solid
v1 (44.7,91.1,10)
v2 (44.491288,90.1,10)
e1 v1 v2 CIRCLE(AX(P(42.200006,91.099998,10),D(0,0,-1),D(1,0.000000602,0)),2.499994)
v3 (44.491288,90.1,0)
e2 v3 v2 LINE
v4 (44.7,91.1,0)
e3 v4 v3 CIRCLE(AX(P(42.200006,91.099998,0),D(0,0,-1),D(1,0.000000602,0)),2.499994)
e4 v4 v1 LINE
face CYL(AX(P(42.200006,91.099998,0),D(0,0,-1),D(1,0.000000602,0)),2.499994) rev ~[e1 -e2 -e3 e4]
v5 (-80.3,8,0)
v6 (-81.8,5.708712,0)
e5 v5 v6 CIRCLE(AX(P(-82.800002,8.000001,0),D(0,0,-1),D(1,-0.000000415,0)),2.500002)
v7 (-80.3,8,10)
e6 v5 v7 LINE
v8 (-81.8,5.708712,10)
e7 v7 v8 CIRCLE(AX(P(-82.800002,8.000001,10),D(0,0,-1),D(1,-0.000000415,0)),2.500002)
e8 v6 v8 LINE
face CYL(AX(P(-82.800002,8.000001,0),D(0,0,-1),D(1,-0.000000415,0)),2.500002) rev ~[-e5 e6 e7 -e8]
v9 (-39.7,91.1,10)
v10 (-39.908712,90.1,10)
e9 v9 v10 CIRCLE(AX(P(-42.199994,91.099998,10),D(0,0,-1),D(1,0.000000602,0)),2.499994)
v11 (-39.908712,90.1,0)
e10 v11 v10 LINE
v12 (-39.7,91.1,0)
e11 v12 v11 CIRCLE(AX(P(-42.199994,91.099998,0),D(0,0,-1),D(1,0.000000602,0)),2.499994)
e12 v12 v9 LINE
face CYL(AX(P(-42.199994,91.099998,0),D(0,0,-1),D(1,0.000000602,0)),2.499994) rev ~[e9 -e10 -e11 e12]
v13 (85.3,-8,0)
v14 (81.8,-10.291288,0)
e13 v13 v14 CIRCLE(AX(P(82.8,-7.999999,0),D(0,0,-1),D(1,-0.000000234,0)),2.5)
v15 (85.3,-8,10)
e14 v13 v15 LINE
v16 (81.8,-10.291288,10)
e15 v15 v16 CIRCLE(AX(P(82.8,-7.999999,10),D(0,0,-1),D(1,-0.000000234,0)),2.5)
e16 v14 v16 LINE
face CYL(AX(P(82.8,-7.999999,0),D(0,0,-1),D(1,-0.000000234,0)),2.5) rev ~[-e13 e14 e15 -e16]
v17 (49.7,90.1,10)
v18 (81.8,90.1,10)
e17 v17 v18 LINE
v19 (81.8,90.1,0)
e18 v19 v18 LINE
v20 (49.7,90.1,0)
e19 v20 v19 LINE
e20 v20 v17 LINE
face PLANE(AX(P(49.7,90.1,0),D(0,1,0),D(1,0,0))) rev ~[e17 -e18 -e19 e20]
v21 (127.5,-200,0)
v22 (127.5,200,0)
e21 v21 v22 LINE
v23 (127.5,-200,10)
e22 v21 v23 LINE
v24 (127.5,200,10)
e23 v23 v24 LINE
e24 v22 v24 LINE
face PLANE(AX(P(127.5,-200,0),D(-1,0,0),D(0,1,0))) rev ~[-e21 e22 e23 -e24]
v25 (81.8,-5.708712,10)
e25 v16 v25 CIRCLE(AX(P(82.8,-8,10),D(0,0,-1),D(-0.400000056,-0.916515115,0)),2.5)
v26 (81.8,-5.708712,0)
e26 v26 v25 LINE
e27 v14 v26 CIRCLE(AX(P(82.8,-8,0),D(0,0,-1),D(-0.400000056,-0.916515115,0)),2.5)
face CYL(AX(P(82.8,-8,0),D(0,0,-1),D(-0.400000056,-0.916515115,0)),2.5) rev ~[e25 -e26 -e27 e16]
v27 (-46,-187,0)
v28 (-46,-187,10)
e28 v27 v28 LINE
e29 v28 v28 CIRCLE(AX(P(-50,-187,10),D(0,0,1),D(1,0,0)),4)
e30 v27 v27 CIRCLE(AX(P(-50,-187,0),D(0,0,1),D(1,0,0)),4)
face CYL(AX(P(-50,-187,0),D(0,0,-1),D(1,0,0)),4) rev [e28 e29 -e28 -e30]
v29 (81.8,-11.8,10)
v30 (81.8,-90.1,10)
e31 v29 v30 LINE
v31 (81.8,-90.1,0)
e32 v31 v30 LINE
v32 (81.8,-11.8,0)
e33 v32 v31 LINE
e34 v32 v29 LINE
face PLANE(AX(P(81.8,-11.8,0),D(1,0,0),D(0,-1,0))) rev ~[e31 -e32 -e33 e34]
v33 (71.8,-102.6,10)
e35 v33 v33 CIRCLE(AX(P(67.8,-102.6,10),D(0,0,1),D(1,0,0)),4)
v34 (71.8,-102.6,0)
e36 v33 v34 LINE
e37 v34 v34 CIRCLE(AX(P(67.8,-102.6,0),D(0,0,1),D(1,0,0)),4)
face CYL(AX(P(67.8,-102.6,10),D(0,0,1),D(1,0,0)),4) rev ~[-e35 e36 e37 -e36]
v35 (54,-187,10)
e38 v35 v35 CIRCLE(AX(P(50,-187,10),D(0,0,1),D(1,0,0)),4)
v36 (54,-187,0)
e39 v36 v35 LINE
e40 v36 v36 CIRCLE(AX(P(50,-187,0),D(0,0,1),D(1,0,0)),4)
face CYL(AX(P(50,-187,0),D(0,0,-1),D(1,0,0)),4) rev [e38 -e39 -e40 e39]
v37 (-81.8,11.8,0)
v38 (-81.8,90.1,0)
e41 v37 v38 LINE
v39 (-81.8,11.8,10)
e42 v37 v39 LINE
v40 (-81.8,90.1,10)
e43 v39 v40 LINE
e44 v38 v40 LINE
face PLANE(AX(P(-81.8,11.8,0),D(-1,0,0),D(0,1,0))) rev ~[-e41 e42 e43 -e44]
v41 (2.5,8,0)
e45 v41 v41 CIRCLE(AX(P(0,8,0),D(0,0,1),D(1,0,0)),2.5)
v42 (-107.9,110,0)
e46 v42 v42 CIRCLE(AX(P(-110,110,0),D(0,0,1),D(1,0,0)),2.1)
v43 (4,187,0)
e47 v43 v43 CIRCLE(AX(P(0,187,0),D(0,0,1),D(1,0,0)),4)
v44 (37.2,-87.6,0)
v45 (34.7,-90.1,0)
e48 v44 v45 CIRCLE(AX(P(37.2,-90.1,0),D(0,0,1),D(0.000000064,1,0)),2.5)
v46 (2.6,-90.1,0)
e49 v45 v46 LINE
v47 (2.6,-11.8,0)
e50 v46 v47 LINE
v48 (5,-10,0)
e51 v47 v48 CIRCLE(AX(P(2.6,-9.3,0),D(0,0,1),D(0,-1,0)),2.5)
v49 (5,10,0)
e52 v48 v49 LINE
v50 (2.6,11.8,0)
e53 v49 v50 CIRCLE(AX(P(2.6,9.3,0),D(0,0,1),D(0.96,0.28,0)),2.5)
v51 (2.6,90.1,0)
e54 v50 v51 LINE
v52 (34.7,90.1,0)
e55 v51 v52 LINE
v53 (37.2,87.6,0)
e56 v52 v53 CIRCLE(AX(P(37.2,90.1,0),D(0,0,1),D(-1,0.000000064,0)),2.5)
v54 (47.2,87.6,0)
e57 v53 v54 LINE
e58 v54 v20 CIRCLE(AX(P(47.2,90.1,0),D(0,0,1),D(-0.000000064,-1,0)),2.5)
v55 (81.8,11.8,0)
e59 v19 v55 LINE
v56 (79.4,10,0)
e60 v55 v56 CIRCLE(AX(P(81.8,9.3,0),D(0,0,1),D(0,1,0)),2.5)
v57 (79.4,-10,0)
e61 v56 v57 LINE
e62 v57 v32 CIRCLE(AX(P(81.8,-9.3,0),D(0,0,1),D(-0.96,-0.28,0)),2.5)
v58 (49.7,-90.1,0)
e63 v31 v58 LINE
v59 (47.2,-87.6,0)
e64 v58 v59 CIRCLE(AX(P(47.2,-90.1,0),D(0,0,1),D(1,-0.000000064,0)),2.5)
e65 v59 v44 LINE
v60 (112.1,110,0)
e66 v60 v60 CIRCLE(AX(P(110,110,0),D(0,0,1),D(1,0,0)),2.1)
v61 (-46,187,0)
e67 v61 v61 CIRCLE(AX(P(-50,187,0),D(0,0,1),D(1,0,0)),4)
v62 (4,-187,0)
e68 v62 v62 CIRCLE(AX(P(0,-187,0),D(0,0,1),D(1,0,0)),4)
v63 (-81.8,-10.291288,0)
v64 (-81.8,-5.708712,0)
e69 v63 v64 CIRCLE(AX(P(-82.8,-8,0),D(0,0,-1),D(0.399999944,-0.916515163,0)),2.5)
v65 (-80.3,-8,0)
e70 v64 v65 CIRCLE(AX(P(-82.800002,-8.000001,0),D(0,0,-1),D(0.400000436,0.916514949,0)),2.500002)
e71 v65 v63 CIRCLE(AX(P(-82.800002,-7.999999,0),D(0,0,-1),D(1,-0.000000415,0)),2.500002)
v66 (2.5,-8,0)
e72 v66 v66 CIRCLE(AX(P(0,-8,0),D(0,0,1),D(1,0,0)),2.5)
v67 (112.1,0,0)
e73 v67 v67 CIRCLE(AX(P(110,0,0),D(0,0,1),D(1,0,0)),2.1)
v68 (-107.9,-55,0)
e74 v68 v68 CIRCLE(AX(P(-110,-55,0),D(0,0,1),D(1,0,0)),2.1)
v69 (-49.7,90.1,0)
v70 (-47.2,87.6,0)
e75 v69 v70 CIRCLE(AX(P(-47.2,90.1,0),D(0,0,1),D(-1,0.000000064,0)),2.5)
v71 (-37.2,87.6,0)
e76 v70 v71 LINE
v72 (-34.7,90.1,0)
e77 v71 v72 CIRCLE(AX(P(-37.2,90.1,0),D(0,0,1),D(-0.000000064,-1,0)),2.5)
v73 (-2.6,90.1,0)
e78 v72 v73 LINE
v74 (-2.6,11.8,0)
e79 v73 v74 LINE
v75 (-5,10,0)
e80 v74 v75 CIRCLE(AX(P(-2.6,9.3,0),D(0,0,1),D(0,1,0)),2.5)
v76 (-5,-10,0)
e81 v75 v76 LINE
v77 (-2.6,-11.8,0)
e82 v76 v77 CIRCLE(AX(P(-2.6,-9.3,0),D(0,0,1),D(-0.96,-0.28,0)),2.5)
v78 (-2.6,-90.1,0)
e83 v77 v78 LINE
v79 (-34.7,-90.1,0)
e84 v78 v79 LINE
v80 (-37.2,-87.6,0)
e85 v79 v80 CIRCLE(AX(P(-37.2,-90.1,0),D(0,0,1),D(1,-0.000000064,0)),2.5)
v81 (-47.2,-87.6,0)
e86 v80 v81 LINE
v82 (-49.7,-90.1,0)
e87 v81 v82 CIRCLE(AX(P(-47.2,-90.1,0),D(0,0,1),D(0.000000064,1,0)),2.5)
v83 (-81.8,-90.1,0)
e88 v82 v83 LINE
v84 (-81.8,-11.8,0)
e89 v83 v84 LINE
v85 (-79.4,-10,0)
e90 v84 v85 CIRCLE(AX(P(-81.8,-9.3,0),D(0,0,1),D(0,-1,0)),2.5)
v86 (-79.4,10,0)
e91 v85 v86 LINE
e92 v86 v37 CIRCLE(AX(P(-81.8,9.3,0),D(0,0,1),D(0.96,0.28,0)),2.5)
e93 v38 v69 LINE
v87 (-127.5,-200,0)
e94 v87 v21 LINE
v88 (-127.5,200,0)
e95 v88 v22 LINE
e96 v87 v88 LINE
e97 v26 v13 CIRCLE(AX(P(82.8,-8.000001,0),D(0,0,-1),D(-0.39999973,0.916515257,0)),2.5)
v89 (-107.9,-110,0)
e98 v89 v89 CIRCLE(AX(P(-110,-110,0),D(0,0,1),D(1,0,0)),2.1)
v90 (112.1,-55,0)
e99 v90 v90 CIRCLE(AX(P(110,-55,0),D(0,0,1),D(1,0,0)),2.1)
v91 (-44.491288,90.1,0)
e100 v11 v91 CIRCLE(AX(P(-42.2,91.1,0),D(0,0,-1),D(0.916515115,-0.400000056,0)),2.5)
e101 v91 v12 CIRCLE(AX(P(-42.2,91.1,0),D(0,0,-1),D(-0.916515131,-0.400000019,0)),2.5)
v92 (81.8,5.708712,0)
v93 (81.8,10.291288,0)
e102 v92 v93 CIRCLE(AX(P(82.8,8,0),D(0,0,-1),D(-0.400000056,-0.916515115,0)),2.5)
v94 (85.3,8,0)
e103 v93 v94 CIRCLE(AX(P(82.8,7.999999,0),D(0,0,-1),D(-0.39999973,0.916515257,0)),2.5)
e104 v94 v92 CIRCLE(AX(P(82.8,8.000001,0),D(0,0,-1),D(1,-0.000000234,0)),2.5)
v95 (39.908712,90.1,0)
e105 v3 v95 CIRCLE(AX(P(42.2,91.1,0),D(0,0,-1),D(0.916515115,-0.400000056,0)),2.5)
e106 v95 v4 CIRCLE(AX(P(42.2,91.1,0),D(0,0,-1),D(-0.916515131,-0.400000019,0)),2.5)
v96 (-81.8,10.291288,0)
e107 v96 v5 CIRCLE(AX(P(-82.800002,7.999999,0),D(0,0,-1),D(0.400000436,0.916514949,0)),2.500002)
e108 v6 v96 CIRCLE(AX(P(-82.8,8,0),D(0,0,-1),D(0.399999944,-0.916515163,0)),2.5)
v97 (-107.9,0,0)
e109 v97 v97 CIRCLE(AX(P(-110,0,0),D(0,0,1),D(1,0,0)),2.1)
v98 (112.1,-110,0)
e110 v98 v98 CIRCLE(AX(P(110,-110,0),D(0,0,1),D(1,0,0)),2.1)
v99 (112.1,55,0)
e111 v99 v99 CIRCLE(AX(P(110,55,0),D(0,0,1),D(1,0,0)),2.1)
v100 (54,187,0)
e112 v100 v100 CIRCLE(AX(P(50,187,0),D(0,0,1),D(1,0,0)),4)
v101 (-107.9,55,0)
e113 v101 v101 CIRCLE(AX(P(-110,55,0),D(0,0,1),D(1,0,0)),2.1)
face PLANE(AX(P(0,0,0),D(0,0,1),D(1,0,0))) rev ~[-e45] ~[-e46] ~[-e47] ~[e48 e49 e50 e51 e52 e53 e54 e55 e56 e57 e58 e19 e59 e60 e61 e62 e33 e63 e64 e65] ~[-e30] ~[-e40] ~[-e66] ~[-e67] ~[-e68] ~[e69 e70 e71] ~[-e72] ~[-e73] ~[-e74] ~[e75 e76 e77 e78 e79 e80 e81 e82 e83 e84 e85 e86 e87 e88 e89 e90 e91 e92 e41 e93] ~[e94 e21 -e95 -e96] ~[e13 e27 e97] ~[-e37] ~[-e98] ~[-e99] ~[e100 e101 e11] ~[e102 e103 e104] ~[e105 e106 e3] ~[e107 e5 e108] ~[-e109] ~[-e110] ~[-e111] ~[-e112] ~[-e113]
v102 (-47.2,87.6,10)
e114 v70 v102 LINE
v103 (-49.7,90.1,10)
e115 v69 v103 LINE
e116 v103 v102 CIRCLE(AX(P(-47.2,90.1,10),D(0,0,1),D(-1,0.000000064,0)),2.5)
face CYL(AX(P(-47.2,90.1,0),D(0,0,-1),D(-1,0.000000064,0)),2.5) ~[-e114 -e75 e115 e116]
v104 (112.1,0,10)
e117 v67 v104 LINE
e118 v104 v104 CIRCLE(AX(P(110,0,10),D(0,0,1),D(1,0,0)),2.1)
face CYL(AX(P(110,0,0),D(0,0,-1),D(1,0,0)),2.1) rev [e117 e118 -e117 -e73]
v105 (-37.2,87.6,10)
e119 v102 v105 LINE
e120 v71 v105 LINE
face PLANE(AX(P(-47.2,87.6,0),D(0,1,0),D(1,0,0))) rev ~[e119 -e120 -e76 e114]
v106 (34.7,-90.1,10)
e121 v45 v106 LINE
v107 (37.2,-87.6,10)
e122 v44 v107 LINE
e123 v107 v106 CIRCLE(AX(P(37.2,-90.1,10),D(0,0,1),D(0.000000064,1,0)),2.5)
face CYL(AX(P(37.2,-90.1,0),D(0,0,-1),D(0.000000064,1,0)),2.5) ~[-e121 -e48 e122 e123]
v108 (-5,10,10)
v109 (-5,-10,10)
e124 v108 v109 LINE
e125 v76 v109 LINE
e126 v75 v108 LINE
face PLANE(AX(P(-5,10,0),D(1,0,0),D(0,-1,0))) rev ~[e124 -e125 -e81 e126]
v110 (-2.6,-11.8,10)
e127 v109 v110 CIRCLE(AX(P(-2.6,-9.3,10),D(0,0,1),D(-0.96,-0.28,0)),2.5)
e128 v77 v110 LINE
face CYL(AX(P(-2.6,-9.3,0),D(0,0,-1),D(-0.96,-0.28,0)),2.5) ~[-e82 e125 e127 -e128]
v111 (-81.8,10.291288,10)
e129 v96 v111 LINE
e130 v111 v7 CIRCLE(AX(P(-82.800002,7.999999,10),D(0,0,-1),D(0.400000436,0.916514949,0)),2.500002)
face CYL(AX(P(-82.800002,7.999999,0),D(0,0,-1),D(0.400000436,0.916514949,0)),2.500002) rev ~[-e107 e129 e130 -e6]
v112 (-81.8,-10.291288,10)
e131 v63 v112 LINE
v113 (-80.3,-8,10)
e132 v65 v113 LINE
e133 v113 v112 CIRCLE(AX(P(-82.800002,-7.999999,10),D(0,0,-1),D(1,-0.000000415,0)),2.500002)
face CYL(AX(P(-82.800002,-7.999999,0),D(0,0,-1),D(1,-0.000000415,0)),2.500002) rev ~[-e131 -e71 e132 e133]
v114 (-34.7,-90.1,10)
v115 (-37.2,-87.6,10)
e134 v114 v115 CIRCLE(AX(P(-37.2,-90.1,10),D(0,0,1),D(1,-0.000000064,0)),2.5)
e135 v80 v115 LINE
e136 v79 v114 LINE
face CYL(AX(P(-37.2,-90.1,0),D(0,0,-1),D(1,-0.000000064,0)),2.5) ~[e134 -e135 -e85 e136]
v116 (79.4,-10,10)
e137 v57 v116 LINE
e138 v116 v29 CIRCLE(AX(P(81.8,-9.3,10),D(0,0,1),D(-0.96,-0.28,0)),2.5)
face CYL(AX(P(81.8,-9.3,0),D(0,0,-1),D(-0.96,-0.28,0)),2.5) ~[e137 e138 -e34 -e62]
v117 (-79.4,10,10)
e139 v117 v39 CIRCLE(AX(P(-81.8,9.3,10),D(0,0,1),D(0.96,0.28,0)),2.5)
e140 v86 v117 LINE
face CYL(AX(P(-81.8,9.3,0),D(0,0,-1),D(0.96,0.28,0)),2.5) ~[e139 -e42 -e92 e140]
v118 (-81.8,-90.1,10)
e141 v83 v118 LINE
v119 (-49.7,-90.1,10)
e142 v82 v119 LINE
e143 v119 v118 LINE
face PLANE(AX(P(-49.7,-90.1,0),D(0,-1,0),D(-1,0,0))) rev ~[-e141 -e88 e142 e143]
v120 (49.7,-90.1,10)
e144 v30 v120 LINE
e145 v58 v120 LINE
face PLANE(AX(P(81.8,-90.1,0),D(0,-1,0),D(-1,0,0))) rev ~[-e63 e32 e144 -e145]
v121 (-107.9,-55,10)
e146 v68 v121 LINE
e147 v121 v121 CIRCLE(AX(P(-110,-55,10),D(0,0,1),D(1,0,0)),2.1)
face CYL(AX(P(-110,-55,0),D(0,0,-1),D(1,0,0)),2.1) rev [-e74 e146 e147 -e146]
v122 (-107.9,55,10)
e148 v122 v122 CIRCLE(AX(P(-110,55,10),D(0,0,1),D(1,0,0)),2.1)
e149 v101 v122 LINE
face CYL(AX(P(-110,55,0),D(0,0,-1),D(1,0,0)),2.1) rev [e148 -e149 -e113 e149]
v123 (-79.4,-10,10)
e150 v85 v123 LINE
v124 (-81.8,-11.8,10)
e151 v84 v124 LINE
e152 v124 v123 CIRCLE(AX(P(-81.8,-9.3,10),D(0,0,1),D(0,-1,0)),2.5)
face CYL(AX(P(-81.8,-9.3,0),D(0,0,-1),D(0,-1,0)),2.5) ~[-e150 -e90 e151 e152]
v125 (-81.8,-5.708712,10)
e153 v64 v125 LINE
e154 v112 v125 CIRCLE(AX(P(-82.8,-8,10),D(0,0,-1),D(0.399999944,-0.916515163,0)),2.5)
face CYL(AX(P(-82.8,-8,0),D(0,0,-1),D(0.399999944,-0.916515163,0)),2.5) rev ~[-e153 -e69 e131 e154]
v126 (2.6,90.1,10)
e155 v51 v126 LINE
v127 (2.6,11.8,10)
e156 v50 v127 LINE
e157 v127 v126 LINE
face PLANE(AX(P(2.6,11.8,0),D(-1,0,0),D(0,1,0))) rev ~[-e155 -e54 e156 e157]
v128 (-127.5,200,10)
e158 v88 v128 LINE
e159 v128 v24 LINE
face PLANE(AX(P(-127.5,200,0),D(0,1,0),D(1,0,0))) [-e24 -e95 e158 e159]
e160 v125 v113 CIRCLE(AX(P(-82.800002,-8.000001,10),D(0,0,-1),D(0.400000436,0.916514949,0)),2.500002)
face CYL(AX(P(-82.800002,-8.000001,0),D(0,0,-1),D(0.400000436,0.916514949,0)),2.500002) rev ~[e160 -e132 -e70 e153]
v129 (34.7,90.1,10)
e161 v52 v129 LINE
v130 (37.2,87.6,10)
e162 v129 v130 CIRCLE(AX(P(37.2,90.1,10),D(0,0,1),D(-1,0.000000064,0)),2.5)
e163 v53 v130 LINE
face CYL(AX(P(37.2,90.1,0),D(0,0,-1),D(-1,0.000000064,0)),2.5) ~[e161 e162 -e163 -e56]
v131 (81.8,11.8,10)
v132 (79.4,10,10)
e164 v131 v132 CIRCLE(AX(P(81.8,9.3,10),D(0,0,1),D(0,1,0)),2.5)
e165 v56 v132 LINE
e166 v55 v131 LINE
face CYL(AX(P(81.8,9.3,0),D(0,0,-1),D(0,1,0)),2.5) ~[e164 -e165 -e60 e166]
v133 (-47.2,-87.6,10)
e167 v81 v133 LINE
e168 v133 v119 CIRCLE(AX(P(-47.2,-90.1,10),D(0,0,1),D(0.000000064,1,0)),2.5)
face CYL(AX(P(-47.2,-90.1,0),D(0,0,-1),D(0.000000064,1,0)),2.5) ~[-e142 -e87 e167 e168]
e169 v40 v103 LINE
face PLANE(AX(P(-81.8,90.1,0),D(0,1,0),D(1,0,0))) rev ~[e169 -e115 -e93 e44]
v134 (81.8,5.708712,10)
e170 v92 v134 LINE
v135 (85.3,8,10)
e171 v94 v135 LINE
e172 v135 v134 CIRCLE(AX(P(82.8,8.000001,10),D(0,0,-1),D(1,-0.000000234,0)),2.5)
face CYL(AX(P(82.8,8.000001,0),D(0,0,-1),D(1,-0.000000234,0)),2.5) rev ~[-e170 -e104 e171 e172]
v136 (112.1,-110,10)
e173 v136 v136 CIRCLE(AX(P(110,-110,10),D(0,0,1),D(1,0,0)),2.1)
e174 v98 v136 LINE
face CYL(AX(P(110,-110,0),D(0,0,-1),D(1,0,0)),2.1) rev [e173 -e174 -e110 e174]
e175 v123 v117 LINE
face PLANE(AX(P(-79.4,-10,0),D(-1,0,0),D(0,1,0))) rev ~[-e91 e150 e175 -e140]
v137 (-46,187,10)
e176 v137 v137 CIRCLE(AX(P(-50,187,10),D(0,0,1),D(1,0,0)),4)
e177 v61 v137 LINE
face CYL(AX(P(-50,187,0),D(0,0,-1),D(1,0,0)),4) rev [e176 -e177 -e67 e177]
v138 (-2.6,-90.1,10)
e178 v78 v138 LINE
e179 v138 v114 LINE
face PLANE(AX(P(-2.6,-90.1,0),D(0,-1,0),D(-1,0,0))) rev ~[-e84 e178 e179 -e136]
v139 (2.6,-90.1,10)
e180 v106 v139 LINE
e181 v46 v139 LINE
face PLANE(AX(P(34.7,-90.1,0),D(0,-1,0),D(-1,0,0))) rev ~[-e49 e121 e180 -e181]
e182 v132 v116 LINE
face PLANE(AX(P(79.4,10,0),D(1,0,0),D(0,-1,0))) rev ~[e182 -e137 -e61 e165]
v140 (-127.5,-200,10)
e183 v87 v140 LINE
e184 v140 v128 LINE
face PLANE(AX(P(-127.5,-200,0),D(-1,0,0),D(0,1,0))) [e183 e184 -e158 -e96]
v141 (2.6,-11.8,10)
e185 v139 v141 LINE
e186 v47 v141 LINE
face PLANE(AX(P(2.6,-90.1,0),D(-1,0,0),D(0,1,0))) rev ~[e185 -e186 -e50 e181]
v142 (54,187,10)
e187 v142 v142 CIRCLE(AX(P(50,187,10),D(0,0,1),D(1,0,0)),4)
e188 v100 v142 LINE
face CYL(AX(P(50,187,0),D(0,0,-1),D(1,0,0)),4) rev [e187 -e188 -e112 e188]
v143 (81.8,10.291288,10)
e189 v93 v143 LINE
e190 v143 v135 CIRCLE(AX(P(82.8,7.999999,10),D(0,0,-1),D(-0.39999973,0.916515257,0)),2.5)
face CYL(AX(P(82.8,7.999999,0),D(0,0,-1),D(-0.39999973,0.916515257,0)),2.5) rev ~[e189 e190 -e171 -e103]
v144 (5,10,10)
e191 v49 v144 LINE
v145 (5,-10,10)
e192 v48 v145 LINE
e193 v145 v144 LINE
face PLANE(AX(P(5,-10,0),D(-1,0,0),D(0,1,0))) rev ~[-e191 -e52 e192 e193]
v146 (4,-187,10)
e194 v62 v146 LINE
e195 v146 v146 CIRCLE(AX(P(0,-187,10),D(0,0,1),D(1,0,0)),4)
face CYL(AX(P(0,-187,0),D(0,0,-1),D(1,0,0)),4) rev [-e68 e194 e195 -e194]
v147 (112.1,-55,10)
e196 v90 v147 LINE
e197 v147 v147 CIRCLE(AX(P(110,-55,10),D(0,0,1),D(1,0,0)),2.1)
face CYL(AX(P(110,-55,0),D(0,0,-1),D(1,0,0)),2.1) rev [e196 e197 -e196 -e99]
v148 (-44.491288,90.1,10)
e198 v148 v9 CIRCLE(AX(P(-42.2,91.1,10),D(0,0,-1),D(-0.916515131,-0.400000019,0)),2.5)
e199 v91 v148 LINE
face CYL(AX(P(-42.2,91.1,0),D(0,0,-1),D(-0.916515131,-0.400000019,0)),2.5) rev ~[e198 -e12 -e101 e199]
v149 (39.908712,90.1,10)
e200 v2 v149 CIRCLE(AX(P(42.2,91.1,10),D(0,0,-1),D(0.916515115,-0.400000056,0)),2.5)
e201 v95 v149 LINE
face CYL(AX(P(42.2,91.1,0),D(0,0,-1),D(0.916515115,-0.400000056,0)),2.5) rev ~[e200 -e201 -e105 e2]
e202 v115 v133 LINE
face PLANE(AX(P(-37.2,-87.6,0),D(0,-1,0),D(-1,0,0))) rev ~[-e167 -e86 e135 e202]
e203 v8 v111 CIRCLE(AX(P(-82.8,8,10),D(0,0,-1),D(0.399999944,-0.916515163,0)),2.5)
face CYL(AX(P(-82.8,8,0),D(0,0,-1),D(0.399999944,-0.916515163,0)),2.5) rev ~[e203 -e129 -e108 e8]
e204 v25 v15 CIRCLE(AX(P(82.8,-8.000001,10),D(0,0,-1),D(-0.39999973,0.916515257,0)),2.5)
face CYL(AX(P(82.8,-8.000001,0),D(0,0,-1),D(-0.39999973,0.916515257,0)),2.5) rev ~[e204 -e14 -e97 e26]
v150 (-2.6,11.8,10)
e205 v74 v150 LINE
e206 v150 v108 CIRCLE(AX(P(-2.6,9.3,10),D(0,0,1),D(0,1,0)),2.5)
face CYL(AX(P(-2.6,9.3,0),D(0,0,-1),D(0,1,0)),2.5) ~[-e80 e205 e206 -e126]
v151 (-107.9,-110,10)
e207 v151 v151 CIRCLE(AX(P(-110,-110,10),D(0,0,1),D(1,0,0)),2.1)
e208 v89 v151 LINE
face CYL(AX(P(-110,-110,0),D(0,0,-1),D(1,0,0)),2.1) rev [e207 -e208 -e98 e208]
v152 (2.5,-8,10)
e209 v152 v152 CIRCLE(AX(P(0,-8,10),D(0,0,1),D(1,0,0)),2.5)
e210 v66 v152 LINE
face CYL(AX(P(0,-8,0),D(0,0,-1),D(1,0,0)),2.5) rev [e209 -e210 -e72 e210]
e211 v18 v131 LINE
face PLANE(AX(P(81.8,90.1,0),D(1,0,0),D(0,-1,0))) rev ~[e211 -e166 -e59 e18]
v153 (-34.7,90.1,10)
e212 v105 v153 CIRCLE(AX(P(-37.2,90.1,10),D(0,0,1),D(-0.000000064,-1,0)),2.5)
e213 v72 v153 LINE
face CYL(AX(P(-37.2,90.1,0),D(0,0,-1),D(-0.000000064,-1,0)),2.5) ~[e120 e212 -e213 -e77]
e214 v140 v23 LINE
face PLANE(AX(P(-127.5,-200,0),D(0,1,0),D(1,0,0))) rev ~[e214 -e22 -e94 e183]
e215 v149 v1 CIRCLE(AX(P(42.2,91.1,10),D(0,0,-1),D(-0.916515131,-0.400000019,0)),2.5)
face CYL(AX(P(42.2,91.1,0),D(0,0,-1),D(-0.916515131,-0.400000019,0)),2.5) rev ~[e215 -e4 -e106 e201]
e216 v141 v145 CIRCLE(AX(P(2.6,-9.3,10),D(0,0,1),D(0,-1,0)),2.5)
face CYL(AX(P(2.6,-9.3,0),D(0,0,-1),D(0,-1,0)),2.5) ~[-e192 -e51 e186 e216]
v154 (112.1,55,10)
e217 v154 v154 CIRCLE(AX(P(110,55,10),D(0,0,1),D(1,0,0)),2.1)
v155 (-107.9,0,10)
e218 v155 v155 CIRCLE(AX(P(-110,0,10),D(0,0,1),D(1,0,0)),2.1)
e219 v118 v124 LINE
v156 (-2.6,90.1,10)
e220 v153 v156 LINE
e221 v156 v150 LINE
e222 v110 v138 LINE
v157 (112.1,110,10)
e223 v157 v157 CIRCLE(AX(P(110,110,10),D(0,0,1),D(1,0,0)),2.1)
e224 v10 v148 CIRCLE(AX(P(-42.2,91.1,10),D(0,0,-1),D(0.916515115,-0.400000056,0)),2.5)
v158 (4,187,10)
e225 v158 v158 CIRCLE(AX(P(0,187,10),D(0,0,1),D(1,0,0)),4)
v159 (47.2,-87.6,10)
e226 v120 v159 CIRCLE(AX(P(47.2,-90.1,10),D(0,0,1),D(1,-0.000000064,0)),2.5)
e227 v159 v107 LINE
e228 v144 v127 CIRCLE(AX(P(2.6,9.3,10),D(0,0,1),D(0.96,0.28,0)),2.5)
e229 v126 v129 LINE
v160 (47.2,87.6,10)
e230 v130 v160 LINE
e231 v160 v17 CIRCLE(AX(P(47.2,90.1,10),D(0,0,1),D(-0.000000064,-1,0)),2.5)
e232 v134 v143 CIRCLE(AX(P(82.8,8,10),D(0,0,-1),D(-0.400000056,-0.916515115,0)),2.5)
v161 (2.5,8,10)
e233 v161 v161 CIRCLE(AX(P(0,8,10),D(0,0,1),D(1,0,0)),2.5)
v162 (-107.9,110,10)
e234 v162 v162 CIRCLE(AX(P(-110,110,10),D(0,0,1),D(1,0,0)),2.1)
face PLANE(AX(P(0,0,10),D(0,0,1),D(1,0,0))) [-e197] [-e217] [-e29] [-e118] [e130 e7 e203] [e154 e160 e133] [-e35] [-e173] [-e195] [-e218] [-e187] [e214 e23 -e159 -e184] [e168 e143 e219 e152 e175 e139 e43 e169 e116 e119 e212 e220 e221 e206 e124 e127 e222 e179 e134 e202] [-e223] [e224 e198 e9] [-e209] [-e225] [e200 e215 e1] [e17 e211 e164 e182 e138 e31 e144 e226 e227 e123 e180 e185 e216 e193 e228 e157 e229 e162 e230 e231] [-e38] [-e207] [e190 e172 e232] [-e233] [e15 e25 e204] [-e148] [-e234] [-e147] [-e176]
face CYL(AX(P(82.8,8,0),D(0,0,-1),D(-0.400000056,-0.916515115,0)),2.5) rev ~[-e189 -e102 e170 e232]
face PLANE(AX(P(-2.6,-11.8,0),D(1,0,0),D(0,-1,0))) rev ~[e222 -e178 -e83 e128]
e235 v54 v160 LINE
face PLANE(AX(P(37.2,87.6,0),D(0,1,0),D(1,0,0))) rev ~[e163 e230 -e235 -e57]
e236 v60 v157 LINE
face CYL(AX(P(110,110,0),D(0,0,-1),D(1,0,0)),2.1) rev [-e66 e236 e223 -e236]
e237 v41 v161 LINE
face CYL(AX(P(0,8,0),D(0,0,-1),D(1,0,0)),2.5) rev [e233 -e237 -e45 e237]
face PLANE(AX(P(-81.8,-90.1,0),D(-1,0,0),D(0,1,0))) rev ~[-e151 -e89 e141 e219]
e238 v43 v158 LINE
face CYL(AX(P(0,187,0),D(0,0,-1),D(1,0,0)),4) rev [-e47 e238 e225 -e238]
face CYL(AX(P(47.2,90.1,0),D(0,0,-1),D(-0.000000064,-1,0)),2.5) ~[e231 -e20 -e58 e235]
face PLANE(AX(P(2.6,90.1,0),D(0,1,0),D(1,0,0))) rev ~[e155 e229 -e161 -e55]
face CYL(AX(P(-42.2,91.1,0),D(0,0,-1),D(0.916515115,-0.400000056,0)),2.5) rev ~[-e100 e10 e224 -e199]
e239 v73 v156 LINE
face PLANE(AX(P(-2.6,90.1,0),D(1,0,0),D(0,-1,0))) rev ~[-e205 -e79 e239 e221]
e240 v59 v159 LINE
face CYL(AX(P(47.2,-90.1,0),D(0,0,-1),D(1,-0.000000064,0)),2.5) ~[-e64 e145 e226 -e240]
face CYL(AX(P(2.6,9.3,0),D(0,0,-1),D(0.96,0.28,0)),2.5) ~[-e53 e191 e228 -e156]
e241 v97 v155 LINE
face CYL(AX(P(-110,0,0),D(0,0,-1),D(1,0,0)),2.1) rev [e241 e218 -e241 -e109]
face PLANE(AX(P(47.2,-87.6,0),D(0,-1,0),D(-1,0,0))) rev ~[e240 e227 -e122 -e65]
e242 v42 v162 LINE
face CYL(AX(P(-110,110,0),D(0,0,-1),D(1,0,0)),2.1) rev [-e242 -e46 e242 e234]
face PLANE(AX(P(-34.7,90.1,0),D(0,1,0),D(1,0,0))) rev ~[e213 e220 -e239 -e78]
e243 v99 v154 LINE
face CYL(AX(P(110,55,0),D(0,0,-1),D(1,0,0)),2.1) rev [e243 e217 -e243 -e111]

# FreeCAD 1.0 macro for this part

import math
import FreeCAD as App
import Part
import Sketcher


def add_polygon(sketch, points):
    """Adds a closed chain of lines whose ends are joined by coincident constraints."""
    first, n = sketch.GeometryCount, len(points)
    for a, b in zip(points, points[1:] + points[:1]):
        sketch.addGeometry(Part.LineSegment(App.Vector(*a, 0), App.Vector(*b, 0)), False)
    for i in range(n):
        sketch.addConstraint(Sketcher.Constraint("Coincident", first + i, 2, first + (i + 1) % n, 1))

doc = App.newDocument("Part")
body = doc.addObject("PartDesign::Body", "Body")

# Sketch on XY plane
sketch1 = doc.addObject("Sketcher::SketchObject", "Sketch")
body.addObject(sketch1)
sketch1.AttachmentSupport = (doc.XY_Plane, [""])
sketch1.MapMode = "FlatFace"
add_polygon(sketch1, [(-127.5, 200), (-127.5, -200), (127.5, -200), (127.5, 200)])  # lines 0-3
sketch1.addGeometry(Part.Circle(App.Vector(-110, -110, 0), App.Vector(0, 0, 1), 2.1), False)  # 4
sketch1.addGeometry(Part.Circle(App.Vector(-50, -187, 0), App.Vector(0, 0, 1), 4), False)  # 5
sketch1.addGeometry(Part.Circle(App.Vector(-110, -55, 0), App.Vector(0, 0, 1), 2.1), False)  # 6
sketch1.addGeometry(Part.Circle(App.Vector(0, -187, 0), App.Vector(0, 0, 1), 4), False)  # 7
sketch1.addGeometry(Part.Circle(App.Vector(50, -187, 0), App.Vector(0, 0, 1), 4), False)  # 8
sketch1.addGeometry(Part.Circle(App.Vector(110, -110, 0), App.Vector(0, 0, 1), 2.1), False)  # 9
sketch1.addGeometry(Part.Circle(App.Vector(0, -8, 0), App.Vector(0, 0, 1), 2.5), False)  # 10
sketch1.addGeometry(Part.Circle(App.Vector(110, -55, 0), App.Vector(0, 0, 1), 2.1), False)  # 11
sketch1.addGeometry(Part.Circle(App.Vector(-110, 0, 0), App.Vector(0, 0, 1), 2.1), False)  # 12
sketch1.addGeometry(Part.Circle(App.Vector(-110, 55, 0), App.Vector(0, 0, 1), 2.1), False)  # 13
sketch1.addGeometry(Part.LineSegment(App.Vector(-34.7, 90.1, 0), App.Vector(-2.6, 90.1, 0)), False)  # 14
sketch1.addGeometry(Part.LineSegment(App.Vector(-2.6, 90.1, 0), App.Vector(-2.6, 11.8, 0)), False)  # 15
sketch1.addGeometry(Part.ArcOfCircle(Part.Circle(App.Vector(-2.6, 9.3, 0), App.Vector(0, 0, 1), 2.5), math.radians(90), math.radians(164)), False)  # 16
sketch1.addGeometry(Part.LineSegment(App.Vector(-5, 10, 0), App.Vector(-5, -10, 0)), False)  # 17
sketch1.addGeometry(Part.ArcOfCircle(Part.Circle(App.Vector(-2.6, -9.3, 0), App.Vector(0, 0, 1), 2.5), math.radians(-164), math.radians(-90)), False)  # 18
sketch1.addGeometry(Part.LineSegment(App.Vector(-2.6, -11.8, 0), App.Vector(-2.6, -90.1, 0)), False)  # 19
sketch1.addGeometry(Part.LineSegment(App.Vector(-2.6, -90.1, 0), App.Vector(-34.7, -90.1, 0)), False)  # 20
sketch1.addGeometry(Part.ArcOfCircle(Part.Circle(App.Vector(-37.2, -90.1, 0), App.Vector(0, 0, 1), 2.5), math.radians(0), math.radians(90)), False)  # 21
sketch1.addGeometry(Part.LineSegment(App.Vector(-37.2, -87.6, 0), App.Vector(-47.2, -87.6, 0)), False)  # 22
sketch1.addGeometry(Part.ArcOfCircle(Part.Circle(App.Vector(-47.2, -90.1, 0), App.Vector(0, 0, 1), 2.5), math.radians(90), math.radians(180)), False)  # 23
sketch1.addGeometry(Part.LineSegment(App.Vector(-49.7, -90.1, 0), App.Vector(-81.8, -90.1, 0)), False)  # 24
sketch1.addGeometry(Part.LineSegment(App.Vector(-81.8, -90.1, 0), App.Vector(-81.8, -11.8, 0)), False)  # 25
sketch1.addGeometry(Part.ArcOfCircle(Part.Circle(App.Vector(-81.8, -9.3, 0), App.Vector(0, 0, 1), 2.5), math.radians(-90), math.radians(-16)), False)  # 26
sketch1.addGeometry(Part.LineSegment(App.Vector(-79.4, -10, 0), App.Vector(-79.4, 10, 0)), False)  # 27
sketch1.addGeometry(Part.ArcOfCircle(Part.Circle(App.Vector(-81.8, 9.3, 0), App.Vector(0, 0, 1), 2.5), math.radians(16), math.radians(90)), False)  # 28
sketch1.addGeometry(Part.LineSegment(App.Vector(-81.8, 11.8, 0), App.Vector(-81.8, 90.1, 0)), False)  # 29
sketch1.addGeometry(Part.LineSegment(App.Vector(-81.8, 90.1, 0), App.Vector(-49.7, 90.1, 0)), False)  # 30
sketch1.addGeometry(Part.ArcOfCircle(Part.Circle(App.Vector(-47.2, 90.1, 0), App.Vector(0, 0, 1), 2.5), math.radians(180), math.radians(270)), False)  # 31
sketch1.addGeometry(Part.LineSegment(App.Vector(-47.2, 87.6, 0), App.Vector(-37.2, 87.6, 0)), False)  # 32
sketch1.addGeometry(Part.ArcOfCircle(Part.Circle(App.Vector(-37.2, 90.1, 0), App.Vector(0, 0, 1), 2.5), math.radians(-90), math.radians(0)), False)  # 33
sketch1.addGeometry(Part.ArcOfCircle(Part.Circle(App.Vector(-42.2, 91.1, 0), App.Vector(0, 0, 1), 2.5), math.radians(0), math.radians(204)), False)  # 34
sketch1.addGeometry(Part.ArcOfCircle(Part.Circle(App.Vector(-42.2, 91.1, 0), App.Vector(0, 0, 1), 2.5), math.radians(-24), math.radians(0)), False)  # 35
sketch1.addGeometry(Part.ArcOfCircle(Part.Circle(App.Vector(-42.2, 91.1, 0), App.Vector(0, 0, 1), 2.5), math.radians(-156), math.radians(-24)), False)  # 36
sketch1.addGeometry(Part.ArcOfCircle(Part.Circle(App.Vector(-82.8, -8, 0), App.Vector(0, 0, 1), 2.5), math.radians(66), math.radians(294)), False)  # 37
sketch1.addGeometry(Part.ArcOfCircle(Part.Circle(App.Vector(-82.8, -8, 0), App.Vector(0, 0, 1), 2.5), math.radians(0), math.radians(66)), False)  # 38
sketch1.addGeometry(Part.ArcOfCircle(Part.Circle(App.Vector(-82.8, -8, 0), App.Vector(0, 0, 1), 2.5), math.radians(-66), math.radians(0)), False)  # 39
sketch1.addGeometry(Part.ArcOfCircle(Part.Circle(App.Vector(-82.8, 8, 0), App.Vector(0, 0, 1), 2.5), math.radians(66), math.radians(294)), False)  # 40
sketch1.addGeometry(Part.ArcOfCircle(Part.Circle(App.Vector(-82.8, 8, 0), App.Vector(0, 0, 1), 2.5), math.radians(0), math.radians(66)), False)  # 41
sketch1.addGeometry(Part.ArcOfCircle(Part.Circle(App.Vector(-82.8, 8, 0), App.Vector(0, 0, 1), 2.5), math.radians(-66), math.radians(0)), False)  # 42
sketch1.addGeometry(Part.Circle(App.Vector(-110, 110, 0), App.Vector(0, 0, 1), 2.1), False)  # 43
sketch1.addGeometry(Part.Circle(App.Vector(-50, 187, 0), App.Vector(0, 0, 1), 4), False)  # 44
sketch1.addGeometry(Part.Circle(App.Vector(0, 8, 0), App.Vector(0, 0, 1), 2.5), False)  # 45
sketch1.addGeometry(Part.LineSegment(App.Vector(2.6, -90.1, 0), App.Vector(2.6, -11.8, 0)), False)  # 46
sketch1.addGeometry(Part.ArcOfCircle(Part.Circle(App.Vector(2.6, -9.3, 0), App.Vector(0, 0, 1), 2.5), math.radians(-90), math.radians(-16)), False)  # 47
sketch1.addGeometry(Part.LineSegment(App.Vector(5, -10, 0), App.Vector(5, 10, 0)), False)  # 48
sketch1.addGeometry(Part.ArcOfCircle(Part.Circle(App.Vector(2.6, 9.3, 0), App.Vector(0, 0, 1), 2.5), math.radians(16), math.radians(90)), False)  # 49
sketch1.addGeometry(Part.LineSegment(App.Vector(2.6, 11.8, 0), App.Vector(2.6, 90.1, 0)), False)  # 50
sketch1.addGeometry(Part.LineSegment(App.Vector(2.6, 90.1, 0), App.Vector(34.7, 90.1, 0)), False)  # 51
sketch1.addGeometry(Part.ArcOfCircle(Part.Circle(App.Vector(37.2, 90.1, 0), App.Vector(0, 0, 1), 2.5), math.radians(180), math.radians(270)), False)  # 52
sketch1.addGeometry(Part.LineSegment(App.Vector(37.2, 87.6, 0), App.Vector(47.2, 87.6, 0)), False)  # 53
sketch1.addGeometry(Part.ArcOfCircle(Part.Circle(App.Vector(47.2, 90.1, 0), App.Vector(0, 0, 1), 2.5), math.radians(-90), math.radians(0)), False)  # 54
sketch1.addGeometry(Part.LineSegment(App.Vector(49.7, 90.1, 0), App.Vector(81.8, 90.1, 0)), False)  # 55
sketch1.addGeometry(Part.LineSegment(App.Vector(81.8, 90.1, 0), App.Vector(81.8, 11.8, 0)), False)  # 56
sketch1.addGeometry(Part.ArcOfCircle(Part.Circle(App.Vector(81.8, 9.3, 0), App.Vector(0, 0, 1), 2.5), math.radians(90), math.radians(164)), False)  # 57
sketch1.addGeometry(Part.LineSegment(App.Vector(79.4, 10, 0), App.Vector(79.4, -10, 0)), False)  # 58
sketch1.addGeometry(Part.ArcOfCircle(Part.Circle(App.Vector(81.8, -9.3, 0), App.Vector(0, 0, 1), 2.5), math.radians(-164), math.radians(-90)), False)  # 59
sketch1.addGeometry(Part.LineSegment(App.Vector(81.8, -11.8, 0), App.Vector(81.8, -90.1, 0)), False)  # 60
sketch1.addGeometry(Part.LineSegment(App.Vector(81.8, -90.1, 0), App.Vector(49.7, -90.1, 0)), False)  # 61
sketch1.addGeometry(Part.ArcOfCircle(Part.Circle(App.Vector(47.2, -90.1, 0), App.Vector(0, 0, 1), 2.5), math.radians(0), math.radians(90)), False)  # 62
sketch1.addGeometry(Part.LineSegment(App.Vector(47.2, -87.6, 0), App.Vector(37.2, -87.6, 0)), False)  # 63
sketch1.addGeometry(Part.ArcOfCircle(Part.Circle(App.Vector(37.2, -90.1, 0), App.Vector(0, 0, 1), 2.5), math.radians(90), math.radians(180)), False)  # 64
sketch1.addGeometry(Part.LineSegment(App.Vector(34.7, -90.1, 0), App.Vector(2.6, -90.1, 0)), False)  # 65
sketch1.addGeometry(Part.ArcOfCircle(Part.Circle(App.Vector(42.2, 91.1, 0), App.Vector(0, 0, 1), 2.5), math.radians(0), math.radians(204)), False)  # 66
sketch1.addGeometry(Part.ArcOfCircle(Part.Circle(App.Vector(42.2, 91.1, 0), App.Vector(0, 0, 1), 2.5), math.radians(-24), math.radians(0)), False)  # 67
sketch1.addGeometry(Part.ArcOfCircle(Part.Circle(App.Vector(42.2, 91.1, 0), App.Vector(0, 0, 1), 2.5), math.radians(-156), math.radians(-24)), False)  # 68
sketch1.addGeometry(Part.ArcOfCircle(Part.Circle(App.Vector(82.8, -8, 0), App.Vector(0, 0, 1), 2.5), math.radians(-114), math.radians(0)), False)  # 69
sketch1.addGeometry(Part.ArcOfCircle(Part.Circle(App.Vector(82.8, -8, 0), App.Vector(0, 0, 1), 2.5), math.radians(114), math.radians(246)), False)  # 70
sketch1.addGeometry(Part.ArcOfCircle(Part.Circle(App.Vector(82.8, -8, 0), App.Vector(0, 0, 1), 2.5), math.radians(0), math.radians(114)), False)  # 71
sketch1.addGeometry(Part.ArcOfCircle(Part.Circle(App.Vector(82.8, 8, 0), App.Vector(0, 0, 1), 2.5), math.radians(-114), math.radians(0)), False)  # 72
sketch1.addGeometry(Part.ArcOfCircle(Part.Circle(App.Vector(82.8, 8, 0), App.Vector(0, 0, 1), 2.5), math.radians(114), math.radians(246)), False)  # 73
sketch1.addGeometry(Part.ArcOfCircle(Part.Circle(App.Vector(82.8, 8, 0), App.Vector(0, 0, 1), 2.5), math.radians(0), math.radians(114)), False)  # 74
sketch1.addGeometry(Part.Circle(App.Vector(110, 0, 0), App.Vector(0, 0, 1), 2.1), False)  # 75
sketch1.addGeometry(Part.Circle(App.Vector(110, 55, 0), App.Vector(0, 0, 1), 2.1), False)  # 76
sketch1.addGeometry(Part.Circle(App.Vector(0, 187, 0), App.Vector(0, 0, 1), 4), False)  # 77
sketch1.addGeometry(Part.Circle(App.Vector(50, 187, 0), App.Vector(0, 0, 1), 4), False)  # 78
sketch1.addGeometry(Part.Circle(App.Vector(110, 110, 0), App.Vector(0, 0, 1), 2.1), False)  # 79
sketch1.addConstraint([
    Sketcher.Constraint("Coincident", 14, 2, 15, 1),
    Sketcher.Constraint("Coincident", 15, 2, 16, 1),
    Sketcher.Constraint("Coincident", 16, 2, 17, 1),
    Sketcher.Constraint("Coincident", 17, 2, 18, 1),
    Sketcher.Constraint("Coincident", 18, 2, 19, 1),
    Sketcher.Constraint("Coincident", 19, 2, 20, 1),
    Sketcher.Constraint("Coincident", 20, 2, 21, 1),
    Sketcher.Constraint("Tangent", 21, 2, 22, 1),
    Sketcher.Constraint("Tangent", 22, 2, 23, 1),
    Sketcher.Constraint("Coincident", 23, 2, 24, 1),
    Sketcher.Constraint("Coincident", 24, 2, 25, 1),
    Sketcher.Constraint("Coincident", 25, 2, 26, 1),
    Sketcher.Constraint("Coincident", 26, 2, 27, 1),
    Sketcher.Constraint("Coincident", 27, 2, 28, 1),
    Sketcher.Constraint("Coincident", 28, 2, 29, 1),
    Sketcher.Constraint("Coincident", 29, 2, 30, 1),
    Sketcher.Constraint("Coincident", 30, 2, 31, 1),
    Sketcher.Constraint("Tangent", 31, 2, 32, 1),
    Sketcher.Constraint("Tangent", 32, 2, 33, 1),
    Sketcher.Constraint("Coincident", 33, 2, 14, 1),
    Sketcher.Constraint("Tangent", 34, 1, 35, 2),
    Sketcher.Constraint("Tangent", 35, 1, 36, 2),
    Sketcher.Constraint("Tangent", 36, 1, 34, 2),
    Sketcher.Constraint("Tangent", 37, 1, 38, 2),
    Sketcher.Constraint("Tangent", 38, 1, 39, 2),
    Sketcher.Constraint("Tangent", 39, 1, 37, 2),
    Sketcher.Constraint("Tangent", 40, 1, 41, 2),
    Sketcher.Constraint("Tangent", 41, 1, 42, 2),
    Sketcher.Constraint("Tangent", 42, 1, 40, 2),
    Sketcher.Constraint("Coincident", 46, 2, 47, 1),
    Sketcher.Constraint("Coincident", 47, 2, 48, 1),
    Sketcher.Constraint("Coincident", 48, 2, 49, 1),
    Sketcher.Constraint("Coincident", 49, 2, 50, 1),
    Sketcher.Constraint("Coincident", 50, 2, 51, 1),
    Sketcher.Constraint("Coincident", 51, 2, 52, 1),
    Sketcher.Constraint("Tangent", 52, 2, 53, 1),
    Sketcher.Constraint("Tangent", 53, 2, 54, 1),
    Sketcher.Constraint("Coincident", 54, 2, 55, 1),
    Sketcher.Constraint("Coincident", 55, 2, 56, 1),
    Sketcher.Constraint("Coincident", 56, 2, 57, 1),
    Sketcher.Constraint("Coincident", 57, 2, 58, 1),
    Sketcher.Constraint("Coincident", 58, 2, 59, 1),
    Sketcher.Constraint("Coincident", 59, 2, 60, 1),
    Sketcher.Constraint("Coincident", 60, 2, 61, 1),
    Sketcher.Constraint("Coincident", 61, 2, 62, 1),
    Sketcher.Constraint("Tangent", 62, 2, 63, 1),
    Sketcher.Constraint("Tangent", 63, 2, 64, 1),
    Sketcher.Constraint("Coincident", 64, 2, 65, 1),
    Sketcher.Constraint("Coincident", 65, 2, 46, 1),
    Sketcher.Constraint("Tangent", 66, 1, 67, 2),
    Sketcher.Constraint("Tangent", 67, 1, 68, 2),
    Sketcher.Constraint("Tangent", 68, 1, 66, 2),
    Sketcher.Constraint("Tangent", 69, 1, 70, 2),
    Sketcher.Constraint("Tangent", 70, 1, 71, 2),
    Sketcher.Constraint("Tangent", 71, 1, 69, 2),
    Sketcher.Constraint("Tangent", 72, 1, 73, 2),
    Sketcher.Constraint("Tangent", 73, 1, 74, 2),
    Sketcher.Constraint("Tangent", 74, 1, 72, 2),
    Sketcher.Constraint("Vertical", 0),
    Sketcher.Constraint("Horizontal", 1),
    Sketcher.Constraint("Vertical", 2),
    Sketcher.Constraint("Horizontal", 3),
    Sketcher.Constraint("Horizontal", 14),
    Sketcher.Constraint("Vertical", 15),
    Sketcher.Constraint("Vertical", 17),
    Sketcher.Constraint("Vertical", 19),
    Sketcher.Constraint("Horizontal", 20),
    Sketcher.Constraint("Horizontal", 22),
    Sketcher.Constraint("Horizontal", 24),
    Sketcher.Constraint("Vertical", 25),
    Sketcher.Constraint("Vertical", 27),
    Sketcher.Constraint("Vertical", 29),
    Sketcher.Constraint("Horizontal", 30),
    Sketcher.Constraint("Horizontal", 32),
    Sketcher.Constraint("Vertical", 46),
    Sketcher.Constraint("Vertical", 48),
    Sketcher.Constraint("Vertical", 50),
    Sketcher.Constraint("Horizontal", 51),
    Sketcher.Constraint("Horizontal", 53),
    Sketcher.Constraint("Horizontal", 55),
    Sketcher.Constraint("Vertical", 56),
    Sketcher.Constraint("Vertical", 58),
    Sketcher.Constraint("Vertical", 60),
    Sketcher.Constraint("Horizontal", 61),
    Sketcher.Constraint("Horizontal", 63),
    Sketcher.Constraint("Horizontal", 65),
    Sketcher.Constraint("Equal", 4, 6),
    Sketcher.Constraint("Equal", 5, 7),
    Sketcher.Constraint("Equal", 7, 8),
    Sketcher.Constraint("Equal", 6, 9),
    Sketcher.Constraint("Equal", 9, 11),
    Sketcher.Constraint("Equal", 11, 12),
    Sketcher.Constraint("Equal", 12, 13),
    Sketcher.Constraint("Equal", 10, 16),
    Sketcher.Constraint("Equal", 16, 18),
    Sketcher.Constraint("Equal", 18, 21),
    Sketcher.Constraint("Equal", 21, 23),
    Sketcher.Constraint("Equal", 23, 26),
    Sketcher.Constraint("Equal", 26, 28),
    Sketcher.Constraint("Equal", 28, 31),
    Sketcher.Constraint("Equal", 31, 33),
    Sketcher.Constraint("Equal", 33, 34),
    Sketcher.Constraint("Equal", 36, 37),
    Sketcher.Constraint("Equal", 39, 40),
    Sketcher.Constraint("Equal", 13, 43),
    Sketcher.Constraint("Equal", 8, 44),
    Sketcher.Constraint("Equal", 42, 45),
    Sketcher.Constraint("Equal", 45, 47),
    Sketcher.Constraint("Equal", 47, 49),
    Sketcher.Constraint("Equal", 49, 52),
    Sketcher.Constraint("Equal", 52, 54),
    Sketcher.Constraint("Equal", 54, 57),
    Sketcher.Constraint("Equal", 57, 59),
    Sketcher.Constraint("Equal", 59, 62),
    Sketcher.Constraint("Equal", 62, 64),
    Sketcher.Constraint("Equal", 64, 66),
    Sketcher.Constraint("Equal", 68, 69),
    Sketcher.Constraint("Equal", 71, 72),
    Sketcher.Constraint("Equal", 43, 75),
    Sketcher.Constraint("Equal", 75, 76),
    Sketcher.Constraint("Equal", 44, 77),
    Sketcher.Constraint("Equal", 77, 78),
    Sketcher.Constraint("Equal", 76, 79),
    Sketcher.Constraint("Symmetric", 11, 3, 13, 3, -1, 1),
    Sketcher.Constraint("Symmetric", 9, 3, 43, 3, -1, 1),
    Sketcher.Constraint("Symmetric", 8, 3, 44, 3, -1, 1),
    Sketcher.Constraint("Symmetric", 10, 3, 45, 3, -1, 1),
    Sketcher.Constraint("Symmetric", 16, 3, 47, 3, -1, 1),
    Sketcher.Constraint("Symmetric", 18, 3, 49, 3, -1, 1),
    Sketcher.Constraint("Symmetric", 21, 3, 52, 3, -1, 1),
    Sketcher.Constraint("Symmetric", 26, 3, 57, 3, -1, 1),
    Sketcher.Constraint("Symmetric", 28, 3, 59, 3, -1, 1),
    Sketcher.Constraint("Symmetric", 31, 3, 62, 3, -1, 1),
    Sketcher.Constraint("Symmetric", 40, 3, 69, 3, -1, 1),
    Sketcher.Constraint("Symmetric", 37, 3, 72, 3, -1, 1),
    Sketcher.Constraint("Symmetric", 12, 3, 75, 3, -1, 1),
    Sketcher.Constraint("Symmetric", 6, 3, 76, 3, -1, 1),
    Sketcher.Constraint("Symmetric", 7, 3, 77, 3, -1, 1),
    Sketcher.Constraint("Symmetric", 5, 3, 78, 3, -1, 1),
    Sketcher.Constraint("Symmetric", 4, 3, 79, 3, -1, 1),
    Sketcher.Constraint("Symmetric", 0, 2, 2, 2, -1, 1),
    Sketcher.Constraint("Symmetric", 19, 2, 50, 2, -1, 1),
    Sketcher.Constraint("Symmetric", 23, 2, 54, 2, -1, 1),
    Sketcher.Constraint("Symmetric", 29, 2, 60, 2, -1, 1),
    Sketcher.Constraint("Symmetric", 33, 2, 64, 2, -1, 1),
    Sketcher.Constraint("Symmetric", 5, 3, 8, 3, -2),
    Sketcher.Constraint("Symmetric", 4, 3, 9, 3, -2),
    Sketcher.Constraint("Symmetric", 6, 3, 11, 3, -2),
    Sketcher.Constraint("Symmetric", 18, 3, 47, 3, -2),
    Sketcher.Constraint("Symmetric", 33, 3, 52, 3, -2),
    Sketcher.Constraint("Symmetric", 28, 3, 57, 3, -2),
    Sketcher.Constraint("Symmetric", 34, 3, 66, 3, -2),
    Sketcher.Constraint("Symmetric", 37, 3, 69, 3, -2),
    Sketcher.Constraint("Symmetric", 14, 2, 50, 2, -2),
    Sketcher.Constraint("Symmetric", 30, 2, 54, 2, -2),
    Sketcher.Constraint("PointOnObject", 7, 3, -2),
    Sketcher.Constraint("PointOnObject", 10, 3, -2),
    Sketcher.Constraint("PointOnObject", 12, 3, -1),
    Sketcher.Constraint("Horizontal", 5, 3, 7, 3),
    Sketcher.Constraint("Horizontal", 18, 3, 26, 3),
    Sketcher.Constraint("Horizontal", 10, 3, 37, 3),
    Sketcher.Constraint("Horizontal", 54, 3, 14, 2),
    Sketcher.Constraint("Horizontal", 20, 2, 23, 2),
    Sketcher.Constraint("Horizontal", 17, 2, 26, 2),
    Sketcher.Constraint("Horizontal", 68, 3, 34, 1),
    Sketcher.Constraint("Horizontal", 33, 2, 35, 1),
    Sketcher.Constraint("Horizontal", 35, 1, 36, 1),
    Sketcher.Constraint("Horizontal", 71, 3, 38, 1),
    Sketcher.Constraint("Horizontal", 74, 3, 41, 1),
    Sketcher.Constraint("Horizontal", 26, 2, 47, 2),
    Sketcher.Constraint("Horizontal", 48, 2, 57, 2),
    Sketcher.Constraint("Horizontal", 34, 1, 66, 1),
    Sketcher.Constraint("Horizontal", 55, 2, 67, 1),
    Sketcher.Constraint("Horizontal", 67, 1, 68, 1),
    Sketcher.Constraint("Horizontal", 39, 1, 69, 1),
    Sketcher.Constraint("Horizontal", 37, 1, 70, 1),
    Sketcher.Constraint("Horizontal", 38, 1, 71, 1),
    Sketcher.Constraint("Horizontal", 42, 1, 72, 1),
    Sketcher.Constraint("Horizontal", 40, 1, 73, 1),
    Sketcher.Constraint("Horizontal", 41, 1, 74, 1),
    Sketcher.Constraint("Vertical", 4, 3, 6, 3),
    Sketcher.Constraint("Vertical", 6, 3, 12, 3),
    Sketcher.Constraint("Vertical", 18, 3, 14, 2),
    Sketcher.Constraint("Vertical", 28, 3, 24, 2),
    Sketcher.Constraint("Vertical", 25, 2, 28, 2),
    Sketcher.Constraint("Vertical", 29, 2, 37, 1),
    Sketcher.Constraint("Vertical", 37, 1, 39, 1),
    Sketcher.Constraint("Vertical", 39, 1, 40, 1),
    Sketcher.Constraint("Vertical", 40, 1, 42, 1),
    Sketcher.Constraint("Vertical", 49, 3, 46, 2),
    Sketcher.Constraint("Vertical", 59, 3, 55, 2),
    Sketcher.Constraint("Equal", 20, 24),
    Sketcher.Constraint("Diameter", 5, 8.0),
    Sketcher.Constraint("Diameter", 10, 5.0),
    Sketcher.Constraint("Diameter", 4, 4.2),
    Sketcher.Constraint("DistanceX", 1, 1, 1, 2, 255.0),
    Sketcher.Constraint("DistanceX", 22, 2, 22, 1, 10.0),
    Sketcher.Constraint("DistanceY", 0, 2, 0, 1, 400.0),
    Sketcher.Constraint("DistanceY", 17, 2, 17, 1, 20.0),
    Sketcher.Constraint("DistanceX", 14, 1, 14, 2, 32.1),
    Sketcher.Constraint("DistanceY", 15, 2, 15, 1, 78.3),
    Sketcher.Constraint("DistanceX", 4, 3, -1, 1, 110.0),
    Sketcher.Constraint("DistanceY", 4, 3, -1, 1, 110.0),
    Sketcher.Constraint("DistanceX", 5, 3, -1, 1, 50.0),
    Sketcher.Constraint("DistanceY", 5, 3, -1, 1, 187.0),
    Sketcher.Constraint("DistanceY", 6, 3, -1, 1, 55.0),
    Sketcher.Constraint("DistanceY", 10, 3, -1, 1, 8.0),
    Sketcher.Constraint("DistanceX", 16, 2, -1, 1, 5.0),
    Sketcher.Constraint("DistanceX", 16, 3, -1, 1, 2.6),
    Sketcher.Constraint("DistanceX", 34, 3, -1, 1, 42.2),
    Sketcher.Constraint("DistanceY", -1, 1, 34, 3, 91.1),
    Sketcher.Constraint("DistanceX", 37, 3, -1, 1, 82.8),
])
pad1 = doc.addObject("PartDesign::Pad", "Pad")
body.addObject(pad1)
pad1.Profile = sketch1
pad1.Length = 10

# Sketch on XY plane
sketch2 = doc.addObject("Sketcher::SketchObject", "Sketch001")
body.addObject(sketch2)
sketch2.AttachmentSupport = (doc.XY_Plane, [""])
sketch2.MapMode = "FlatFace"
sketch2.AttachmentOffset = App.Placement(App.Vector(0, 0, 10), App.Rotation())
sketch2.addGeometry(Part.Circle(App.Vector(67.8, -102.6, 0), App.Vector(0, 0, 1), 4), False)
sketch2.addConstraint([
    Sketcher.Constraint("Diameter", 0, 8.0),
    Sketcher.Constraint("DistanceX", -1, 1, 0, 3, 67.8),
    Sketcher.Constraint("DistanceY", 0, 3, -1, 1, 102.6),
])
pocket1 = doc.addObject("PartDesign::Pocket", "Pocket")
body.addObject(pocket1)
pocket1.Profile = sketch2
pocket1.Type = "ThroughAll"

doc.recompute()
